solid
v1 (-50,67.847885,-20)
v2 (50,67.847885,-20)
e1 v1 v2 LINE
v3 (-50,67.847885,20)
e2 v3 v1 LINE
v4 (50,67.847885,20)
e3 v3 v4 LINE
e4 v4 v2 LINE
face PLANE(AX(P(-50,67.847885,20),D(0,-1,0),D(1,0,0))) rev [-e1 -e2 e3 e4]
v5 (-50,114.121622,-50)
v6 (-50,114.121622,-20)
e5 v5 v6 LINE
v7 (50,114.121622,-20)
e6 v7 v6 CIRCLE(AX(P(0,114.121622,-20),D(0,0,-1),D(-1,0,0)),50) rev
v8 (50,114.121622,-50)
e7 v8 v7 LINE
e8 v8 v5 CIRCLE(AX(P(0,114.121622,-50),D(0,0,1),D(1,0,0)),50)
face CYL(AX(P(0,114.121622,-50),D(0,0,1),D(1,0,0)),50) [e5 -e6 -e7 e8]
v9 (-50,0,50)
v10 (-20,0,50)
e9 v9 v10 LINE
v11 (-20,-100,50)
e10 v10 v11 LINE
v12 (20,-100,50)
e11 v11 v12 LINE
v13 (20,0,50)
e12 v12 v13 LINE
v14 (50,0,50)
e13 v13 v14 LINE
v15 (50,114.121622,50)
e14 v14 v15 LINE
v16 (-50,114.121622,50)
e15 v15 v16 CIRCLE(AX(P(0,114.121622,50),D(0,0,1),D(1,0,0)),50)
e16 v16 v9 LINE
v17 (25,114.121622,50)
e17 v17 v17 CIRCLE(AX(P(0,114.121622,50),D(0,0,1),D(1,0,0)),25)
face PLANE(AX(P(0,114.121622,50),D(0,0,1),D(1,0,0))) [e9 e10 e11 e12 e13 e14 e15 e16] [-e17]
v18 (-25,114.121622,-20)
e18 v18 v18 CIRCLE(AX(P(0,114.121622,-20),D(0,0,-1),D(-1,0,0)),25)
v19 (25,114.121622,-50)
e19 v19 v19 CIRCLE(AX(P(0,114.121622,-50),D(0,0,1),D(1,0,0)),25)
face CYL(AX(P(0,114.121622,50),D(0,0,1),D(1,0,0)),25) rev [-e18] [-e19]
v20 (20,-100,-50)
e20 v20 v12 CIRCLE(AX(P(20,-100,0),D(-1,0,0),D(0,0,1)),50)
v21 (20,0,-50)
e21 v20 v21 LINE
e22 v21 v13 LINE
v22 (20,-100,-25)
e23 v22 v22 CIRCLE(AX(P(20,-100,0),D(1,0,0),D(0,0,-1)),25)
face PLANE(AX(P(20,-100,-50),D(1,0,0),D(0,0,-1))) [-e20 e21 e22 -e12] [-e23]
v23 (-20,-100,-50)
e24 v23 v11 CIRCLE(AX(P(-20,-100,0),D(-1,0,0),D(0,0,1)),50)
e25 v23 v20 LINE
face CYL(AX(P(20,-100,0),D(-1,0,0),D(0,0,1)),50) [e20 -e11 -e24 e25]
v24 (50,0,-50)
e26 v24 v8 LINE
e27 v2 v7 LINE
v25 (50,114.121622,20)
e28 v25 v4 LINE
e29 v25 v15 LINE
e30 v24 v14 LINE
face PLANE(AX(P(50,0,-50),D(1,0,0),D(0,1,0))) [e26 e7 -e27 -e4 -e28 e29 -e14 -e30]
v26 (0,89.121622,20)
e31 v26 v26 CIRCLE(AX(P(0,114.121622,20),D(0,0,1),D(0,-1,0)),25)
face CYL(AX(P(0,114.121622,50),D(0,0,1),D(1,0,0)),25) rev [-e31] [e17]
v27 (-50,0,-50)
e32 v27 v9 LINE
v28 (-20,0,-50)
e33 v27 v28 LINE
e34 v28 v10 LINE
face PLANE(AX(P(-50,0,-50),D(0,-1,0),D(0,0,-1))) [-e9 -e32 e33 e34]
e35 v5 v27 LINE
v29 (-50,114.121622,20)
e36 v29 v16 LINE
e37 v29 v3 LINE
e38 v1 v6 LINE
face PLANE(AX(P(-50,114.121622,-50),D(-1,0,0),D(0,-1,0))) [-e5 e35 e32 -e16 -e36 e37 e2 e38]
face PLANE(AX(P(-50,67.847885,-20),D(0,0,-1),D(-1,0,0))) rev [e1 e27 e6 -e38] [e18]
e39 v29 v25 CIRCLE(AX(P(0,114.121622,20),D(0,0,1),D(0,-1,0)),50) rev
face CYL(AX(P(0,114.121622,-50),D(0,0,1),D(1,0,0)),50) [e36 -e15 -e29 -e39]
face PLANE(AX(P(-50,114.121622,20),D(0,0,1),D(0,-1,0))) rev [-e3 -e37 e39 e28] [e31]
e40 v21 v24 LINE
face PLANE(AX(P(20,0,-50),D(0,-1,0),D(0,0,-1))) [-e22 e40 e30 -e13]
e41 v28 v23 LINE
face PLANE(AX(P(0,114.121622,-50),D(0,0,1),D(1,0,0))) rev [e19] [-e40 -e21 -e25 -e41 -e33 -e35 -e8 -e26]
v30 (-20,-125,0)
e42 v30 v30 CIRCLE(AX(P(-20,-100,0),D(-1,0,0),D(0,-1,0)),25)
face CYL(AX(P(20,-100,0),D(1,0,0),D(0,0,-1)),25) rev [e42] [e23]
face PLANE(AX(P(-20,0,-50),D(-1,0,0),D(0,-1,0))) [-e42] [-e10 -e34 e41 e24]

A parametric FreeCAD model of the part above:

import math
import FreeCAD as App
import Part
import Sketcher

doc = App.newDocument("Part")
body = doc.addObject("PartDesign::Body", "Body")

# Sketch on XY plane
sketch1 = body.newObject("Sketcher::SketchObject", "Sketch")
sketch1.AttachmentSupport = (doc.getObject("XY_Plane"), [""])
sketch1.MapMode = "FlatFace"
sketch1.addGeometry([
    Part.LineSegment(App.Vector(20, 0, 0), App.Vector(50, 0, 0)),  # 0
    Part.LineSegment(App.Vector(50, 0, 0), App.Vector(50, 114, 0)),  # 1
    Part.ArcOfCircle(Part.Circle(App.Vector(0, 114, 0), App.Vector(0, 0, 1), 50), math.radians(0), math.radians(180)),  # 2
    Part.LineSegment(App.Vector(-50, 114, 0), App.Vector(-50, 0, 0)),  # 3
    Part.LineSegment(App.Vector(-50, 0, 0), App.Vector(-20, 0, 0)),  # 4
    Part.LineSegment(App.Vector(-20, 0, 0), App.Vector(-20, -100, 0)),  # 5
    Part.LineSegment(App.Vector(-20, -100, 0), App.Vector(20, -100, 0)),  # 6
    Part.LineSegment(App.Vector(20, -100, 0), App.Vector(20, 0, 0)),  # 7
], False)
sketch1.addConstraint([
    Sketcher.Constraint("Coincident", 0, 2, 1, 1),
    Sketcher.Constraint("Tangent", 1, 2, 2, 1),
    Sketcher.Constraint("Tangent", 2, 2, 3, 1),
    Sketcher.Constraint("Coincident", 3, 2, 4, 1),
    Sketcher.Constraint("Coincident", 4, 2, 5, 1),
    Sketcher.Constraint("Coincident", 5, 2, 6, 1),
    Sketcher.Constraint("Coincident", 6, 2, 7, 1),
    Sketcher.Constraint("Coincident", 7, 2, 0, 1),
    Sketcher.Constraint("Horizontal", 0),
    Sketcher.Constraint("Vertical", 1),
    Sketcher.Constraint("Vertical", 3),
    Sketcher.Constraint("Horizontal", 4),
    Sketcher.Constraint("Vertical", 5),
    Sketcher.Constraint("Horizontal", 6),
    Sketcher.Constraint("Vertical", 7),
    Sketcher.Constraint("Symmetric", 0, 2, 3, 2, -1, 1),
    Sketcher.Constraint("Symmetric", 4, 2, 7, 2, -2),
    Sketcher.Constraint("Radius", 2, 50.0),
    Sketcher.Constraint("DistanceX", 0, 1, 0, 2, 30.0),
    Sketcher.Constraint("DistanceY", 5, 2, 5, 1, 100.0),
    Sketcher.Constraint("DistanceY", 1, 1, 1, 2, 114.121622),
])
pad1 = body.newObject("PartDesign::Pad", "Pad")
pad1.Profile = sketch1
pad1.Type = "TwoLengths"
pad1.Length = 50
pad1.Length2 = 50

# Sketch on YZ plane
sketch2 = body.newObject("Sketcher::SketchObject", "Sketch001")
sketch2.AttachmentSupport = (doc.getObject("YZ_Plane"), [""])
sketch2.MapMode = "FlatFace"
sketch2.AttachmentOffset = App.Placement(App.Vector(0, 0, 50), App.Rotation())
sketch2.addGeometry([
    Part.LineSegment(App.Vector(68, 20, 0), App.Vector(68, -20, 0)),
    Part.LineSegment(App.Vector(68, -20, 0), App.Vector(169, -20, 0)),
    Part.LineSegment(App.Vector(169, -20, 0), App.Vector(169, 20, 0)),
    Part.LineSegment(App.Vector(169, 20, 0), App.Vector(68, 20, 0)),
], False)
sketch2.addConstraint([
    Sketcher.Constraint("Coincident", 0, 2, 1, 1),
    Sketcher.Constraint("Coincident", 1, 2, 2, 1),
    Sketcher.Constraint("Coincident", 2, 2, 3, 1),
    Sketcher.Constraint("Coincident", 3, 2, 0, 1),
    Sketcher.Constraint("Vertical", 0),
    Sketcher.Constraint("Horizontal", 1),
    Sketcher.Constraint("Vertical", 2),
    Sketcher.Constraint("Horizontal", 3),
    Sketcher.Constraint("DistanceY", 0, 2, 0, 1, 40.0),
    Sketcher.Constraint("DistanceY", 0, 2, -1, 1, 20.0),
    Sketcher.Constraint("DistanceX", 1, 1, 1, 2, 100.815007),
    Sketcher.Constraint("DistanceX", -1, 1, 1, 2, 168.662892),
])
pocket1 = body.newObject("PartDesign::Pocket", "Pocket")
pocket1.Profile = sketch2
pocket1.Type = "ThroughAll"

# Sketch on XY plane
sketch3 = body.newObject("Sketcher::SketchObject", "Sketch002")
sketch3.AttachmentSupport = (doc.getObject("XY_Plane"), [""])
sketch3.MapMode = "FlatFace"
sketch3.AttachmentOffset = App.Placement(App.Vector(0, 0, 50), App.Rotation())
sketch3.addGeometry(Part.Circle(App.Vector(0, 114, 0), App.Vector(0, 0, 1), 25), False)
sketch3.addConstraint([
    Sketcher.Constraint("PointOnObject", 0, 3, -2),
    Sketcher.Constraint("Diameter", 0, 50.0),
    Sketcher.Constraint("DistanceY", -1, 1, 0, 3, 114.121622),
])
doc.recompute()
hole = body.newObject("PartDesign::Hole", "Hole")
hole.Profile = sketch3
hole.ThreadType = "None"
hole.Diameter = 50
hole.DepthType = "ThroughAll"

# Sketch on XZ plane
sketch4 = body.newObject("Sketcher::SketchObject", "Sketch003")
sketch4.AttachmentSupport = (doc.getObject("XZ_Plane"), [""])
sketch4.MapMode = "FlatFace"
sketch4.AttachmentOffset = App.Placement(App.Vector(0, 0, 100), App.Rotation())
sketch4.addGeometry([
    Part.LineSegment(App.Vector(-20, 50, 0), App.Vector(-20, 0, 0)),
    Part.LineSegment(App.Vector(-20, 0, 0), App.Vector(20, 0, 0)),
    Part.LineSegment(App.Vector(20, 0, 0), App.Vector(20, 50, 0)),
    Part.LineSegment(App.Vector(20, 50, 0), App.Vector(-20, 50, 0)),
], False)
sketch4.addConstraint([
    Sketcher.Constraint("Coincident", 0, 2, 1, 1),
    Sketcher.Constraint("Coincident", 1, 2, 2, 1),
    Sketcher.Constraint("Coincident", 2, 2, 3, 1),
    Sketcher.Constraint("Coincident", 3, 2, 0, 1),
    Sketcher.Constraint("Vertical", 0),
    Sketcher.Constraint("Horizontal", 1),
    Sketcher.Constraint("Vertical", 2),
    Sketcher.Constraint("Horizontal", 3),
    Sketcher.Constraint("Symmetric", 0, 2, 1, 2, -1, 1),
    Sketcher.Constraint("DistanceX", 1, 1, 1, 2, 40.0),
    Sketcher.Constraint("DistanceY", 0, 2, 0, 1, 50.0),
])
revolution = body.newObject("PartDesign::Revolution", "Revolution")
revolution.Profile = sketch4
revolution.ReferenceAxis = (sketch4, ["H_Axis"])
revolution.Angle = 180

# Sketch on YZ plane
sketch5 = body.newObject("Sketcher::SketchObject", "Sketch004")
sketch5.AttachmentSupport = (doc.getObject("YZ_Plane"), [""])
sketch5.MapMode = "FlatFace"
sketch5.AttachmentOffset = App.Placement(App.Vector(0, 0, 20), App.Rotation())
sketch5.addGeometry(Part.Circle(App.Vector(-100, 0, 0), App.Vector(0, 0, 1), 25), False)
sketch5.addConstraint([
    Sketcher.Constraint("PointOnObject", 0, 3, -1),
    Sketcher.Constraint("Diameter", 0, 50.0),
    Sketcher.Constraint("DistanceX", 0, 3, -1, 1, 100.0),
])
doc.recompute()
hole2 = body.newObject("PartDesign::Hole", "Hole001")
hole2.Profile = sketch5
hole2.ThreadType = "None"
hole2.Diameter = 50
hole2.DepthType = "ThroughAll"

doc.recompute()
